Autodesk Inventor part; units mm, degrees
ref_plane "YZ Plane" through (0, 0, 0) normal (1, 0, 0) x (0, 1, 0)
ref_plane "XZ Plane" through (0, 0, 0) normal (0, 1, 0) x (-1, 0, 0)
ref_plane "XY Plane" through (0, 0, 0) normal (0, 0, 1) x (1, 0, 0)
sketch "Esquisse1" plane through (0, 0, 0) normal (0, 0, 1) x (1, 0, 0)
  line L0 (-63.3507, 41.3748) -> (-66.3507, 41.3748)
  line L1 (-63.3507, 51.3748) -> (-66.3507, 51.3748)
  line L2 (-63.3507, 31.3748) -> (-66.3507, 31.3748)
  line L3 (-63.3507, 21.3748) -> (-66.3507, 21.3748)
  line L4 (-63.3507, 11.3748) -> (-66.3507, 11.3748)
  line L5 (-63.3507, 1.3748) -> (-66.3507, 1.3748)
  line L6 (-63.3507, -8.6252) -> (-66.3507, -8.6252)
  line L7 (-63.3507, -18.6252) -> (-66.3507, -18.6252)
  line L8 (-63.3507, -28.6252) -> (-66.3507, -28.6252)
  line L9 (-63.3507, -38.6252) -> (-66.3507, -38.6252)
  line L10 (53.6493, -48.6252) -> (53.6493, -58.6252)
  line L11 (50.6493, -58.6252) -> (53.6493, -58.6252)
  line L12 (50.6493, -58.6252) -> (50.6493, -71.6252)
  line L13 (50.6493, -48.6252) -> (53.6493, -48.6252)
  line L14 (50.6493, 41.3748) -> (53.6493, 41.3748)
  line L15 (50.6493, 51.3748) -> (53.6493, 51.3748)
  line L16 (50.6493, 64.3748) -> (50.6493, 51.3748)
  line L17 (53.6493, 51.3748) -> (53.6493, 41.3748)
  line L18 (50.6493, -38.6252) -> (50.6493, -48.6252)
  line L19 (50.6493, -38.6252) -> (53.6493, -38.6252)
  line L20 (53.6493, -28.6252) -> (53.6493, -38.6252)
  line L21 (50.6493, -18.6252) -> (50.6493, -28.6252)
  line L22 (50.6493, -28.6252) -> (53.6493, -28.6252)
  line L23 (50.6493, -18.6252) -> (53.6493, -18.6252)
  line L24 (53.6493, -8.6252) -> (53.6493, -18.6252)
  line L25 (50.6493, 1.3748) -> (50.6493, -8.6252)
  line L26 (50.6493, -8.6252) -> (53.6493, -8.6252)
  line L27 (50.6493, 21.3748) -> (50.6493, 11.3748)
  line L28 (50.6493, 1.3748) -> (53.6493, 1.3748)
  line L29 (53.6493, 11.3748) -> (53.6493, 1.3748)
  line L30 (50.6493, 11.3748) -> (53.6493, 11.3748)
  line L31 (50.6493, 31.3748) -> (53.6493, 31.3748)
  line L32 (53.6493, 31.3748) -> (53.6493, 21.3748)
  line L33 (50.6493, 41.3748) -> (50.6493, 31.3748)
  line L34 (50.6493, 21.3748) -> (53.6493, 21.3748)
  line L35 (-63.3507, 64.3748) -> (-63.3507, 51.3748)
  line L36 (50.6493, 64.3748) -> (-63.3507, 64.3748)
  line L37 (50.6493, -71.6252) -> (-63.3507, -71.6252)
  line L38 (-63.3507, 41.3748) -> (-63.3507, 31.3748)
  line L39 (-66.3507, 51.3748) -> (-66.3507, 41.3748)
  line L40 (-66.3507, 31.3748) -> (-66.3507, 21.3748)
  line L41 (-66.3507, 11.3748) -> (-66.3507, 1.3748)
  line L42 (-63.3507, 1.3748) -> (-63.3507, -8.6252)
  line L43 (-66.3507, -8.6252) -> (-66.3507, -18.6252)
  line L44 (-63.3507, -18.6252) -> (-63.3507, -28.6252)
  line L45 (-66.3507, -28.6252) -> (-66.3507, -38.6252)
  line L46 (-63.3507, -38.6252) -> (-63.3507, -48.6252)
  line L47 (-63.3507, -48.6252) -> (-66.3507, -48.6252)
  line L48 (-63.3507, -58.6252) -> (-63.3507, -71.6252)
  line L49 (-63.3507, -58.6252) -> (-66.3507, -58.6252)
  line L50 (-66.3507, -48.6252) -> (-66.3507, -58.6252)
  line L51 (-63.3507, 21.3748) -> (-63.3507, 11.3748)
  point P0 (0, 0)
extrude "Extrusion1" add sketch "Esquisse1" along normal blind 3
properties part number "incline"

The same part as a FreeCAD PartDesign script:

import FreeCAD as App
import Part
import Sketcher


def add_polygon(sketch, points):
    """Adds a closed chain of lines whose ends are joined by coincident constraints."""
    first, n = sketch.GeometryCount, len(points)
    for a, b in zip(points, points[1:] + points[:1]):
        sketch.addGeometry(Part.LineSegment(App.Vector(*a, 0), App.Vector(*b, 0)), False)
    for i in range(n):
        sketch.addConstraint(Sketcher.Constraint("Coincident", first + i, 2, first + (i + 1) % n, 1))

doc = App.newDocument("Part")
body = doc.addObject("PartDesign::Body", "Body")

# Sketch on XY plane
sketch1 = body.newObject("Sketcher::SketchObject", "Sketch")
sketch1.AttachmentSupport = (doc.getObject("XY_Plane"), [""])
sketch1.MapMode = "FlatFace"
add_polygon(sketch1, [(-66.4, 41.4), (-63.4, 41.4), (-63.4, 31.4), (-66.4, 31.4), (-66.4, 21.4), (-63.4, 21.4), (-63.4, 11.4), (-66.4, 11.4), (-66.4, 1.4), (-63.4, 1.4), (-63.4, -8.6), (-66.4, -8.6), (-66.4, -18.6), (-63.4, -18.6), (-63.4, -28.6), (-66.4, -28.6), (-66.4, -38.6), (-63.4, -38.6), (-63.4, -48.6), (-66.4, -48.6), (-66.4, -58.6), (-63.4, -58.6), (-63.4, -71.6), (50.6, -71.6), (50.6, -58.6), (53.6, -58.6), (53.6, -48.6), (50.6, -48.6), (50.6, -38.6), (53.6, -38.6), (53.6, -28.6), (50.6, -28.6), (50.6, -18.6), (53.6, -18.6), (53.6, -8.6), (50.6, -8.6), (50.6, 1.4), (53.6, 1.4), (53.6, 11.4), (50.6, 11.4), (50.6, 21.4), (53.6, 21.4), (53.6, 31.4), (50.6, 31.4), (50.6, 41.4), (53.6, 41.4), (53.6, 51.4), (50.6, 51.4), (50.6, 64.4), (-63.4, 64.4), (-63.4, 51.4), (-66.4, 51.4)])  # lines 0-51
sketch1.addConstraint(Sketcher.Constraint("Horizontal", 0))
sketch1.addConstraint(Sketcher.Constraint("Vertical", 1))
sketch1.addConstraint(Sketcher.Constraint("Horizontal", 2))
sketch1.addConstraint(Sketcher.Constraint("Vertical", 3))
sketch1.addConstraint(Sketcher.Constraint("Horizontal", 4))
sketch1.addConstraint(Sketcher.Constraint("Vertical", 5))
sketch1.addConstraint(Sketcher.Constraint("Horizontal", 6))
sketch1.addConstraint(Sketcher.Constraint("Vertical", 7))
sketch1.addConstraint(Sketcher.Constraint("Horizontal", 8))
sketch1.addConstraint(Sketcher.Constraint("Vertical", 9))
sketch1.addConstraint(Sketcher.Constraint("Horizontal", 10))
sketch1.addConstraint(Sketcher.Constraint("Vertical", 11))
sketch1.addConstraint(Sketcher.Constraint("Horizontal", 12))
sketch1.addConstraint(Sketcher.Constraint("Vertical", 13))
sketch1.addConstraint(Sketcher.Constraint("Horizontal", 14))
sketch1.addConstraint(Sketcher.Constraint("Vertical", 15))
sketch1.addConstraint(Sketcher.Constraint("Horizontal", 16))
sketch1.addConstraint(Sketcher.Constraint("Vertical", 17))
sketch1.addConstraint(Sketcher.Constraint("Horizontal", 18))
sketch1.addConstraint(Sketcher.Constraint("Vertical", 19))
sketch1.addConstraint(Sketcher.Constraint("Horizontal", 20))
sketch1.addConstraint(Sketcher.Constraint("Vertical", 21))
sketch1.addConstraint(Sketcher.Constraint("Horizontal", 22))
sketch1.addConstraint(Sketcher.Constraint("Vertical", 23))
sketch1.addConstraint(Sketcher.Constraint("Horizontal", 24))
sketch1.addConstraint(Sketcher.Constraint("Vertical", 25))
sketch1.addConstraint(Sketcher.Constraint("Horizontal", 26))
sketch1.addConstraint(Sketcher.Constraint("Vertical", 27))
sketch1.addConstraint(Sketcher.Constraint("Horizontal", 28))
sketch1.addConstraint(Sketcher.Constraint("Vertical", 29))
sketch1.addConstraint(Sketcher.Constraint("Horizontal", 30))
sketch1.addConstraint(Sketcher.Constraint("Vertical", 31))
sketch1.addConstraint(Sketcher.Constraint("Horizontal", 32))
sketch1.addConstraint(Sketcher.Constraint("Vertical", 33))
sketch1.addConstraint(Sketcher.Constraint("Horizontal", 34))
sketch1.addConstraint(Sketcher.Constraint("Vertical", 35))
sketch1.addConstraint(Sketcher.Constraint("Horizontal", 36))
sketch1.addConstraint(Sketcher.Constraint("Vertical", 37))
sketch1.addConstraint(Sketcher.Constraint("Horizontal", 38))
sketch1.addConstraint(Sketcher.Constraint("Vertical", 39))
sketch1.addConstraint(Sketcher.Constraint("Horizontal", 40))
sketch1.addConstraint(Sketcher.Constraint("Vertical", 41))
sketch1.addConstraint(Sketcher.Constraint("Horizontal", 42))
sketch1.addConstraint(Sketcher.Constraint("Vertical", 43))
sketch1.addConstraint(Sketcher.Constraint("Horizontal", 44))
sketch1.addConstraint(Sketcher.Constraint("Vertical", 45))
sketch1.addConstraint(Sketcher.Constraint("Horizontal", 46))
sketch1.addConstraint(Sketcher.Constraint("Vertical", 47))
sketch1.addConstraint(Sketcher.Constraint("Horizontal", 48))
sketch1.addConstraint(Sketcher.Constraint("Vertical", 49))
sketch1.addConstraint(Sketcher.Constraint("Horizontal", 50))
sketch1.addConstraint(Sketcher.Constraint("Vertical", 51))
sketch1.addConstraint(Sketcher.Constraint("Horizontal", 20, 2, 23, 2))
sketch1.addConstraint(Sketcher.Constraint("Horizontal", 18, 2, 25, 2))
sketch1.addConstraint(Sketcher.Constraint("Horizontal", 16, 2, 27, 2))
sketch1.addConstraint(Sketcher.Constraint("Horizontal", 14, 2, 29, 2))
sketch1.addConstraint(Sketcher.Constraint("Horizontal", 12, 2, 31, 2))
sketch1.addConstraint(Sketcher.Constraint("Horizontal", 10, 2, 33, 2))
sketch1.addConstraint(Sketcher.Constraint("Horizontal", 8, 2, 35, 2))
sketch1.addConstraint(Sketcher.Constraint("Horizontal", 6, 2, 37, 2))
sketch1.addConstraint(Sketcher.Constraint("Horizontal", 4, 2, 39, 2))
sketch1.addConstraint(Sketcher.Constraint("Horizontal", 2, 2, 41, 2))
sketch1.addConstraint(Sketcher.Constraint("Horizontal", 0, 2, 43, 2))
sketch1.addConstraint(Sketcher.Constraint("Horizontal", 46, 2, 49, 2))
sketch1.addConstraint(Sketcher.Constraint("Vertical", 1, 2, 4, 2))
sketch1.addConstraint(Sketcher.Constraint("Vertical", 3, 2, 6, 2))
sketch1.addConstraint(Sketcher.Constraint("Vertical", 5, 2, 8, 2))
sketch1.addConstraint(Sketcher.Constraint("Vertical", 7, 2, 10, 2))
sketch1.addConstraint(Sketcher.Constraint("Vertical", 9, 2, 12, 2))
sketch1.addConstraint(Sketcher.Constraint("Vertical", 11, 2, 14, 2))
sketch1.addConstraint(Sketcher.Constraint("Vertical", 13, 2, 16, 2))
sketch1.addConstraint(Sketcher.Constraint("Vertical", 15, 2, 18, 2))
sketch1.addConstraint(Sketcher.Constraint("Vertical", 17, 2, 20, 2))
sketch1.addConstraint(Sketcher.Constraint("Vertical", 23, 2, 26, 2))
sketch1.addConstraint(Sketcher.Constraint("Vertical", 25, 2, 28, 2))
sketch1.addConstraint(Sketcher.Constraint("Vertical", 27, 2, 30, 2))
sketch1.addConstraint(Sketcher.Constraint("Vertical", 29, 2, 32, 2))
sketch1.addConstraint(Sketcher.Constraint("Vertical", 31, 2, 34, 2))
sketch1.addConstraint(Sketcher.Constraint("Vertical", 33, 2, 36, 2))
sketch1.addConstraint(Sketcher.Constraint("Vertical", 35, 2, 38, 2))
sketch1.addConstraint(Sketcher.Constraint("Vertical", 37, 2, 40, 2))
sketch1.addConstraint(Sketcher.Constraint("Vertical", 39, 2, 42, 2))
sketch1.addConstraint(Sketcher.Constraint("Vertical", 41, 2, 44, 2))
sketch1.addConstraint(Sketcher.Constraint("Vertical", 43, 2, 46, 2))
sketch1.addConstraint(Sketcher.Constraint("Vertical", 21, 2, 48, 2))
sketch1.addConstraint(Sketcher.Constraint("Vertical", 19, 2, 50, 2))
sketch1.addConstraint(Sketcher.Constraint("Equal", 20, 24))
sketch1.addConstraint(Sketcher.Constraint("Equal", 1, 3))
sketch1.addConstraint(Sketcher.Constraint("Equal", 3, 5))
sketch1.addConstraint(Sketcher.Constraint("Equal", 5, 7))
sketch1.addConstraint(Sketcher.Constraint("Equal", 7, 9))
sketch1.addConstraint(Sketcher.Constraint("Equal", 9, 11))
sketch1.addConstraint(Sketcher.Constraint("Equal", 11, 13))
sketch1.addConstraint(Sketcher.Constraint("Equal", 13, 15))
sketch1.addConstraint(Sketcher.Constraint("Equal", 15, 17))
sketch1.addConstraint(Sketcher.Constraint("Equal", 17, 19))
sketch1.addConstraint(Sketcher.Constraint("Equal", 43, 45))
sketch1.addConstraint(Sketcher.Constraint("Equal", 23, 47))
sketch1.addConstraint(Sketcher.Constraint("DistanceX", 0, 1, 0, 2, 3.0))
sketch1.addConstraint(Sketcher.Constraint("DistanceX", 22, 1, 22, 2, 114.0))
sketch1.addConstraint(Sketcher.Constraint("DistanceY", 1, 2, 1, 1, 10.0))
sketch1.addConstraint(Sketcher.Constraint("DistanceY", 21, 2, 21, 1, 13.0))
sketch1.addConstraint(Sketcher.Constraint("DistanceX", 0, 2, -1, 1, 63.3507))
sketch1.addConstraint(Sketcher.Constraint("DistanceY", -1, 1, 0, 2, 41.3748))
pad1 = body.newObject("PartDesign::Pad", "Pad")
pad1.Profile = sketch1
pad1.Length = 3

doc.recompute()
